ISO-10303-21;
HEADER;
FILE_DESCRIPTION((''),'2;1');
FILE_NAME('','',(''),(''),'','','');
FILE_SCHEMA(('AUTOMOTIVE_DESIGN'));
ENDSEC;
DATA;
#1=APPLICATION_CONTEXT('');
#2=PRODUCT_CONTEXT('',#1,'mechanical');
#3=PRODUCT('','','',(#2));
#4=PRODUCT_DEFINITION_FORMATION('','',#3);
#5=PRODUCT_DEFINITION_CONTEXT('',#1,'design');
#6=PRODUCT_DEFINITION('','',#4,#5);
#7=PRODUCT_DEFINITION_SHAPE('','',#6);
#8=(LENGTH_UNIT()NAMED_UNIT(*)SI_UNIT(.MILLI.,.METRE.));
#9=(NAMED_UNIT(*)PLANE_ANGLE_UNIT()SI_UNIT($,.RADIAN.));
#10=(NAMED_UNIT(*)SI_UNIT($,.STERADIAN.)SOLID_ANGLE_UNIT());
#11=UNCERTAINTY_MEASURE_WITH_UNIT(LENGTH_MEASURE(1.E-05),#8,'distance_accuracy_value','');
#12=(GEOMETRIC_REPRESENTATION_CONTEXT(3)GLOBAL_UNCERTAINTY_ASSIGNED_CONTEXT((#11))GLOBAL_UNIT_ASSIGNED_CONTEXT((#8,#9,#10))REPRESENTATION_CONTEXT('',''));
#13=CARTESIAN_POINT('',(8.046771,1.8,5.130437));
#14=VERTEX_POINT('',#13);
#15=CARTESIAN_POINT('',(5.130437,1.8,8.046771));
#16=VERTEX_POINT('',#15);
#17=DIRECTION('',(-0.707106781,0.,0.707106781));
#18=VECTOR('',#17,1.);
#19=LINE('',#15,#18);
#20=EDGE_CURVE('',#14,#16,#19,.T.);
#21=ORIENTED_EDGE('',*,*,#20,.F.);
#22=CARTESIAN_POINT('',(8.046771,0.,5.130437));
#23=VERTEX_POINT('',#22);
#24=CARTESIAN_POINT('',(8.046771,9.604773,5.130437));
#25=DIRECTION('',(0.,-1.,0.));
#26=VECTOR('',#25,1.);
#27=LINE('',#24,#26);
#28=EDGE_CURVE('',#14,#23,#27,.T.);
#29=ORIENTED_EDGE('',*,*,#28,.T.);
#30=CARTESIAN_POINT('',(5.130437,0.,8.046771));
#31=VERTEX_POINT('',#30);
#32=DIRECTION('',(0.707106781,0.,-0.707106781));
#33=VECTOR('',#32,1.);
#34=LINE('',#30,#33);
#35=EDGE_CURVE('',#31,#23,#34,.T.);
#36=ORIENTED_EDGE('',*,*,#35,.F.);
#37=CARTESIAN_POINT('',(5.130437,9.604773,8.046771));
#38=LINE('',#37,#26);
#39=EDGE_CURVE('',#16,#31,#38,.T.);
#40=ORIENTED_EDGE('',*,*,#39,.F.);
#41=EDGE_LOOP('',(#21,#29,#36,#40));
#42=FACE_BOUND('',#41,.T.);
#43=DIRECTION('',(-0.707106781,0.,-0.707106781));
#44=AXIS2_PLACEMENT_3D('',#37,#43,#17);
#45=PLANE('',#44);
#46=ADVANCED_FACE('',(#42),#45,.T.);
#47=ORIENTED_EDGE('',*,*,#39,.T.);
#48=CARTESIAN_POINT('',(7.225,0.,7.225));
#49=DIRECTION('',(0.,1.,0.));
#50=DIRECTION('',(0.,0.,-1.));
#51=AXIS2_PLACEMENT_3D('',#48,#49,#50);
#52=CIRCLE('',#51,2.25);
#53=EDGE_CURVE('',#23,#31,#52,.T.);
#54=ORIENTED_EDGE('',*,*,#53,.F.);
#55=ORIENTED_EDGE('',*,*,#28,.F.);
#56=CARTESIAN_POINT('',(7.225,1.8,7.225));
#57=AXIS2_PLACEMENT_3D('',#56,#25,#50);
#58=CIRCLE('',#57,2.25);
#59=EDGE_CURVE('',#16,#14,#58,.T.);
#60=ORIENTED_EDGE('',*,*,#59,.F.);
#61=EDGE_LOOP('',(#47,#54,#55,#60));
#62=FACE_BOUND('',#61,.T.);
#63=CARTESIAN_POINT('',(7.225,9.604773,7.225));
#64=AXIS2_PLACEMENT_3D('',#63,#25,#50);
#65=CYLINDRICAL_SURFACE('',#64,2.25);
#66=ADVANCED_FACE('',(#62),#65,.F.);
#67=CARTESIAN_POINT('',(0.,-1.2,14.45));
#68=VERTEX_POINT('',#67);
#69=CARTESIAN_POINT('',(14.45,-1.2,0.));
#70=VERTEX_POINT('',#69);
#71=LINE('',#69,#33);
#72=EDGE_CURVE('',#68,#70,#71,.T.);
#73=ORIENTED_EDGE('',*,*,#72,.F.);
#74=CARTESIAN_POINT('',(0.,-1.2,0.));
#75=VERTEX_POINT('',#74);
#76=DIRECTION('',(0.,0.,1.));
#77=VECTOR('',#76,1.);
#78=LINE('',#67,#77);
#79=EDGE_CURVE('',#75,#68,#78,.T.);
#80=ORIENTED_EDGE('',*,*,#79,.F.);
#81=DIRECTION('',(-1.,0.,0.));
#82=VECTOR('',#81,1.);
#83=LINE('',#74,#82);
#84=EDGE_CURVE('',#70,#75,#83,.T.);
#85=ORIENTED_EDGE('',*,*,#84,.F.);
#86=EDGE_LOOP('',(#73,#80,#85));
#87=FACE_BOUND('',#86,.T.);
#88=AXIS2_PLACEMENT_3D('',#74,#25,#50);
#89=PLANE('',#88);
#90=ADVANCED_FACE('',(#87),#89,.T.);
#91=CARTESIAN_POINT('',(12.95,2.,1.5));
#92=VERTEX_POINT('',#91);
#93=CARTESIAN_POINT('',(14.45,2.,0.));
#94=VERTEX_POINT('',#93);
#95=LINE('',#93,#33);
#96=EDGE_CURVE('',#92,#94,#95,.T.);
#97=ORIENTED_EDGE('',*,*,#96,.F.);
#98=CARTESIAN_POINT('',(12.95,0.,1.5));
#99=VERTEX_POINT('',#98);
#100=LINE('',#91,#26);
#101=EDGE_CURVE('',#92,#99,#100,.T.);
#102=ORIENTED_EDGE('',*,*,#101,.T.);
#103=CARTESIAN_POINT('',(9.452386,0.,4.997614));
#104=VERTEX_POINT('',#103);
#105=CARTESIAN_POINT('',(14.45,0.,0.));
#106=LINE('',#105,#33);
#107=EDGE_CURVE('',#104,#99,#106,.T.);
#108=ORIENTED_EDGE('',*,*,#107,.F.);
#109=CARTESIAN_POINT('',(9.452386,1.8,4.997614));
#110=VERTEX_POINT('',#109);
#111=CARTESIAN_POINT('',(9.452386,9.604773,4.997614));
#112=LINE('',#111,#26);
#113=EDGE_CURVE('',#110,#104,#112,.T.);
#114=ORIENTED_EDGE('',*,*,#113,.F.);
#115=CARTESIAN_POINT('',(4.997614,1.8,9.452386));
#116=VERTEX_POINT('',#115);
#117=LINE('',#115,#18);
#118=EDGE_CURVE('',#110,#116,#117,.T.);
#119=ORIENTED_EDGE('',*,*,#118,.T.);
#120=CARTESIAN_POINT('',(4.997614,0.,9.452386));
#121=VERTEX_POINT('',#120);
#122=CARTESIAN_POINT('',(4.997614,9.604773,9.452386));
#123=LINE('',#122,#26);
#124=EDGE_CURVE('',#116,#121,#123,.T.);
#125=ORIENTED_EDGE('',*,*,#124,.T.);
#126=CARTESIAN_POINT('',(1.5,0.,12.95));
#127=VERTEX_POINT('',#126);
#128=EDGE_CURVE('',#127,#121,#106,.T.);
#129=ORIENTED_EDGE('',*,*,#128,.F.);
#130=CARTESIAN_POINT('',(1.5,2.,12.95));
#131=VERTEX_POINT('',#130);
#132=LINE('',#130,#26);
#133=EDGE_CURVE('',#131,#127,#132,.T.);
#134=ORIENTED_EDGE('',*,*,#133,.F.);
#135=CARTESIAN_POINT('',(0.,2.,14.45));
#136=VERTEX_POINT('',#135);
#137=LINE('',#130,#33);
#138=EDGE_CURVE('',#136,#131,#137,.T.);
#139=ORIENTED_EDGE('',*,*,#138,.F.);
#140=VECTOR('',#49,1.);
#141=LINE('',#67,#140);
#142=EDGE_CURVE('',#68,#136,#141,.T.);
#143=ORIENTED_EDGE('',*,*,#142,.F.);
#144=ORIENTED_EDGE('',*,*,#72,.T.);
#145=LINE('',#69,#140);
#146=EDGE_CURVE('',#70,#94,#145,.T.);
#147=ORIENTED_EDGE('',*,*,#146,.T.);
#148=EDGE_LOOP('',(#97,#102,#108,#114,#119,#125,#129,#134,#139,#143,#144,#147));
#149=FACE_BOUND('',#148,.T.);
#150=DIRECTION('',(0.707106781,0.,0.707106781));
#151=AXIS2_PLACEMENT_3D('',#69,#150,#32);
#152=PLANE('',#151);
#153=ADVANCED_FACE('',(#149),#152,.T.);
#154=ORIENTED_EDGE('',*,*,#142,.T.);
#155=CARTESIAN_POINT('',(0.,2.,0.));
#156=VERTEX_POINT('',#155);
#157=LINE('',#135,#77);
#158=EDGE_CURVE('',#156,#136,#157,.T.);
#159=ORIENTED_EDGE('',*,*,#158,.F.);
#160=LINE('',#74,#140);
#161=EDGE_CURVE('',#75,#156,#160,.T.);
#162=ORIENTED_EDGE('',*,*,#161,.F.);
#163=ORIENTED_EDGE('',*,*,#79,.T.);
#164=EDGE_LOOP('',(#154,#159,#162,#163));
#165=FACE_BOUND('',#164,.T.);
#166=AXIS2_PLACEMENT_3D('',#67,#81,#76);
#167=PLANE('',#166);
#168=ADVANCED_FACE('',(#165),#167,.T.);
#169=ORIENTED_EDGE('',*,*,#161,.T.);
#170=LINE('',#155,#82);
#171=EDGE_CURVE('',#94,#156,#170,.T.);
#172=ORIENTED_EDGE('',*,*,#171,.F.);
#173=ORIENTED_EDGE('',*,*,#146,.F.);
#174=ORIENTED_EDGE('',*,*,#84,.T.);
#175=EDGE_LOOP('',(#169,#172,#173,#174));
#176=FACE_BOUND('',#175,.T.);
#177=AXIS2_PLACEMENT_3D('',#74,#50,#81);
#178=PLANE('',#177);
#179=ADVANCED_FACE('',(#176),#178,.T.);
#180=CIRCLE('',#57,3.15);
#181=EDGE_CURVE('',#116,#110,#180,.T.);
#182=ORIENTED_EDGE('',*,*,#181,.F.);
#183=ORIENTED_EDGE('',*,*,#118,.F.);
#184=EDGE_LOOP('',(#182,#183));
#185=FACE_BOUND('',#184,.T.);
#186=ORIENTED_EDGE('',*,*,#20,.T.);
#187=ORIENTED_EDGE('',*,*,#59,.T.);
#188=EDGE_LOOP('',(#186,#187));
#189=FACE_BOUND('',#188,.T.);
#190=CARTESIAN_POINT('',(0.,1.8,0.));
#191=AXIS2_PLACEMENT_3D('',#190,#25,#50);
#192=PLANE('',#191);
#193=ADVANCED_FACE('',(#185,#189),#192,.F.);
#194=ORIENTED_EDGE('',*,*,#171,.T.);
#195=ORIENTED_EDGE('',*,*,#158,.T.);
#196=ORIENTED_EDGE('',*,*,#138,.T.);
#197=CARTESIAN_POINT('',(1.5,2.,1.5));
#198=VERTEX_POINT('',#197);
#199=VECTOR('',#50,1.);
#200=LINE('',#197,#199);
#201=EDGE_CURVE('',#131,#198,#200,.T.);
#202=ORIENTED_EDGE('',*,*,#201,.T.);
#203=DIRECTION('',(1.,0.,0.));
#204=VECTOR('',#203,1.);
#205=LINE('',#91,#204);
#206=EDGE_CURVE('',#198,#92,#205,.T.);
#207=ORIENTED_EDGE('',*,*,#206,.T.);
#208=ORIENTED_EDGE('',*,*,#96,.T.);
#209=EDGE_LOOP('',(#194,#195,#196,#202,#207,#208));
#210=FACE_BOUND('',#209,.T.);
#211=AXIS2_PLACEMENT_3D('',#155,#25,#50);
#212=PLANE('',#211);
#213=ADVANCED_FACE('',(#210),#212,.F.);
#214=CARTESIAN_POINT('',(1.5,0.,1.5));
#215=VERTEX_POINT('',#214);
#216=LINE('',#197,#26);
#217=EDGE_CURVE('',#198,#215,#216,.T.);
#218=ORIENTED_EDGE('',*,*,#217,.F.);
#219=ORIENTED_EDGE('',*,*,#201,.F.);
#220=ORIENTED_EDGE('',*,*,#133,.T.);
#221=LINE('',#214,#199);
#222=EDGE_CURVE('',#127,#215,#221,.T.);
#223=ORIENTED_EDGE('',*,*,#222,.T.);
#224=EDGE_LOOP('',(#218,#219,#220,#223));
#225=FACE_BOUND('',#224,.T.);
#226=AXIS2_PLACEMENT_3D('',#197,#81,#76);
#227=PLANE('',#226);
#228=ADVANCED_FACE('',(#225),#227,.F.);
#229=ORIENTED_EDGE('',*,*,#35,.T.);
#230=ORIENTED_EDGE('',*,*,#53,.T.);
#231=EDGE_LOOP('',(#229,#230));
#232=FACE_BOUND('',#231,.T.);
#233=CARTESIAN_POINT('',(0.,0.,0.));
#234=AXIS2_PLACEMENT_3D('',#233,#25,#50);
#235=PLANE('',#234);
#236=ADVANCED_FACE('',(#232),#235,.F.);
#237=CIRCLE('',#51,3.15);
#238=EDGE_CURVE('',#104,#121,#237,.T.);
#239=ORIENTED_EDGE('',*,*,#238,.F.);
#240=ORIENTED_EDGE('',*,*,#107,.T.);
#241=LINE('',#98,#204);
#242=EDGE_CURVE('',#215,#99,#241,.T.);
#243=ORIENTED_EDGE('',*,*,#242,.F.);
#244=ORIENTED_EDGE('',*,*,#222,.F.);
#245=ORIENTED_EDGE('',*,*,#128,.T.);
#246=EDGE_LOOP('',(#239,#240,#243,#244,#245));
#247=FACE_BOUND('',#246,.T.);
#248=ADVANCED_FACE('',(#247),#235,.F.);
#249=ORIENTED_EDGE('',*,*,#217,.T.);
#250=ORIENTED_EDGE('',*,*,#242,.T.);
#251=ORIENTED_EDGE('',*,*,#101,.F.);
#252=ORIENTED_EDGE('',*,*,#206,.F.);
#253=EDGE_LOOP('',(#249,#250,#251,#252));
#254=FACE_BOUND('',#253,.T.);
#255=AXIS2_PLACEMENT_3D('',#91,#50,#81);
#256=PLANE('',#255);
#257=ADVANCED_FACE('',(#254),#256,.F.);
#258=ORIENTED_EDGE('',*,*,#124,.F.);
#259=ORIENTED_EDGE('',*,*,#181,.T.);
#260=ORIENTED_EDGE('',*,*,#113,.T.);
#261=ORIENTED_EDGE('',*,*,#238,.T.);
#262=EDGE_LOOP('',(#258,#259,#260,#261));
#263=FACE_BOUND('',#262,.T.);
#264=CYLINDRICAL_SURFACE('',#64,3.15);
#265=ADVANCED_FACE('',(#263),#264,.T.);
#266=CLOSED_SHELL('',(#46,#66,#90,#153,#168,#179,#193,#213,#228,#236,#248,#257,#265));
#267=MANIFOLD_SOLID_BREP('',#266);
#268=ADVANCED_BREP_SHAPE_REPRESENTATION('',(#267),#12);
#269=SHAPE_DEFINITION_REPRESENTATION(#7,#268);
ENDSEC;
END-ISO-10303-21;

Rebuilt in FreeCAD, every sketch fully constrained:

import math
import FreeCAD as App
import Part
import Sketcher
from FreeCAD import Vector
Q = App.Units.Quantity

doc = App.newDocument("Part")
body = doc.addObject("PartDesign::Body", "Body")

# Sketch on XZ plane
sketch1 = body.newObject("Sketcher::SketchObject", "Sketch")
sketch1.AttachmentSupport = (doc.getObject("XZ_Plane"), [""])
sketch1.MapMode = "FlatFace"
sketch1.addGeometry(Part.LineSegment(Vector(14, 0, 0), Vector(0, 0, 0)), False)
sketch1.addGeometry(Part.LineSegment(Vector(0, 0, 0), Vector(0, 14, 0)), False)
sketch1.addGeometry(Part.LineSegment(Vector(0, 14, 0), Vector(14, 0, 0)), False)
sketch1.addConstraint(Sketcher.Constraint("Coincident", 0, 2, 1, 1))
sketch1.addConstraint(Sketcher.Constraint("Coincident", 1, 2, 2, 1))
sketch1.addConstraint(Sketcher.Constraint("Coincident", 2, 2, 0, 1))
sketch1.addConstraint(Sketcher.Constraint("Horizontal", 0))
sketch1.addConstraint(Sketcher.Constraint("Vertical", 1))
sketch1.addConstraint(Sketcher.Constraint("Coincident", 0, 2, -1, 1))
sketch1.addConstraint(Sketcher.Constraint("Equal", 0, 1))
sketch1.addConstraint(Sketcher.Constraint("DistanceX", 0, 2, 0, 1, Q("14.45 mm")))
pad1 = body.newObject("PartDesign::Pad", "Pad")
pad1.Profile = sketch1
pad1.Length = 1.2

# Sketch on XZ plane
sketch2 = body.newObject("Sketcher::SketchObject", "Sketch001")
sketch2.AttachmentSupport = (doc.getObject("XZ_Plane"), [""])
sketch2.MapMode = "FlatFace"
sketch2.addGeometry(Part.LineSegment(Vector(14.4, 0, 0), Vector(0, 0, 0)), False)
sketch2.addGeometry(Part.LineSegment(Vector(0, 0, 0), Vector(0, 14.4, 0)), False)
sketch2.addGeometry(Part.LineSegment(Vector(0, 14.4, 0), Vector(1.5, 12.9, 0)), False)
sketch2.addGeometry(Part.LineSegment(Vector(1.5, 12.9, 0), Vector(1.5, 1.5, 0)), False)
sketch2.addGeometry(Part.LineSegment(Vector(1.5, 1.5, 0), Vector(12.9, 1.5, 0)), False)
sketch2.addGeometry(Part.LineSegment(Vector(12.9, 1.5, 0), Vector(14.4, 0, 0)), False)
sketch2.addConstraint(Sketcher.Constraint("Coincident", 0, 2, 1, 1))
sketch2.addConstraint(Sketcher.Constraint("Coincident", 1, 2, 2, 1))
sketch2.addConstraint(Sketcher.Constraint("Coincident", 2, 2, 3, 1))
sketch2.addConstraint(Sketcher.Constraint("Coincident", 3, 2, 4, 1))
sketch2.addConstraint(Sketcher.Constraint("Coincident", 4, 2, 5, 1))
sketch2.addConstraint(Sketcher.Constraint("Coincident", 5, 2, 0, 1))
sketch2.addConstraint(Sketcher.Constraint("Horizontal", 0))
sketch2.addConstraint(Sketcher.Constraint("Vertical", 1))
sketch2.addConstraint(Sketcher.Constraint("Vertical", 3))
sketch2.addConstraint(Sketcher.Constraint("Horizontal", 4))
sketch2.addConstraint(Sketcher.Constraint("Coincident", 0, 2, -1, 1))
sketch2.addConstraint(Sketcher.Constraint("Parallel", 2, 5))
sketch2.addConstraint(Sketcher.Constraint("Equal", 0, 1))
sketch2.addConstraint(Sketcher.Constraint("Equal", 4, 3))
sketch2.addConstraint(Sketcher.Constraint("Equal", 2, 5))
sketch2.addConstraint(Sketcher.Constraint("DistanceX", 0, 2, 0, 1, Q("14.45 mm")))
sketch2.addConstraint(Sketcher.Constraint("DistanceX", 4, 1, 4, 2, Q("11.45 mm")))
pad2 = body.newObject("PartDesign::Pad", "Pad001")
pad2.Profile = sketch2
pad2.Length = 2
pad2.Reversed = True

# Sketch on XZ plane
sketch3 = body.newObject("Sketcher::SketchObject", "Sketch002")
sketch3.AttachmentSupport = (doc.getObject("XZ_Plane"), [""])
sketch3.MapMode = "FlatFace"
sketch3.addGeometry(Part.LineSegment(Vector(5, 9.5, 0), Vector(9.5, 5, 0)), False)
sketch3.addGeometry(Part.ArcOfCircle(Part.Circle(Vector(7.2, 7.2, 0), Vector(0, 0, 1), 3.1), math.radians(135), math.radians(315)), False)
sketch3.addGeometry(Part.LineSegment(Vector(8, 5.1, 0), Vector(5.1, 8, 0)), False)
sketch3.addGeometry(Part.ArcOfCircle(Part.Circle(Vector(7.2, 7.2, 0), Vector(0, 0, 1), 2.2), math.radians(159), math.radians(291)), False)
sketch3.addConstraint(Sketcher.Constraint("Coincident", 0, 1, 1, 1))
sketch3.addConstraint(Sketcher.Constraint("Coincident", 1, 2, 0, 2))
sketch3.addConstraint(Sketcher.Constraint("Coincident", 2, 1, 3, 2))
sketch3.addConstraint(Sketcher.Constraint("Coincident", 3, 1, 2, 2))
sketch3.addConstraint(Sketcher.Constraint("Coincident", 3, 3, 1, 3))
sketch3.addConstraint(Sketcher.Constraint("Parallel", 0, 2))
sketch3.addConstraint(Sketcher.Constraint("Angle", 0, Q("-45 deg")))
sketch3.addConstraint(Sketcher.Constraint("Radius", 1, Q("3.15 mm")))
sketch3.addConstraint(Sketcher.Constraint("Radius", 3, Q("2.25 mm")))
sketch3.addConstraint(Sketcher.Constraint("DistanceX", -1, 1, 1, 3, Q("7.225 mm")))
sketch3.addConstraint(Sketcher.Constraint("DistanceY", -1, 1, 1, 3, Q("7.225 mm")))
sketch3.addConstraint(Sketcher.Constraint("Distance", 2, Q("4.124318 mm")))
sketch3.addConstraint(Sketcher.Constraint("DistanceY", 2, 1, 0, 1, Q("4.321949 mm")))
pad3 = body.newObject("PartDesign::Pad", "Pad002")
pad3.Profile = sketch3
pad3.Length = 1.8
pad3.Reversed = True

doc.recompute()
